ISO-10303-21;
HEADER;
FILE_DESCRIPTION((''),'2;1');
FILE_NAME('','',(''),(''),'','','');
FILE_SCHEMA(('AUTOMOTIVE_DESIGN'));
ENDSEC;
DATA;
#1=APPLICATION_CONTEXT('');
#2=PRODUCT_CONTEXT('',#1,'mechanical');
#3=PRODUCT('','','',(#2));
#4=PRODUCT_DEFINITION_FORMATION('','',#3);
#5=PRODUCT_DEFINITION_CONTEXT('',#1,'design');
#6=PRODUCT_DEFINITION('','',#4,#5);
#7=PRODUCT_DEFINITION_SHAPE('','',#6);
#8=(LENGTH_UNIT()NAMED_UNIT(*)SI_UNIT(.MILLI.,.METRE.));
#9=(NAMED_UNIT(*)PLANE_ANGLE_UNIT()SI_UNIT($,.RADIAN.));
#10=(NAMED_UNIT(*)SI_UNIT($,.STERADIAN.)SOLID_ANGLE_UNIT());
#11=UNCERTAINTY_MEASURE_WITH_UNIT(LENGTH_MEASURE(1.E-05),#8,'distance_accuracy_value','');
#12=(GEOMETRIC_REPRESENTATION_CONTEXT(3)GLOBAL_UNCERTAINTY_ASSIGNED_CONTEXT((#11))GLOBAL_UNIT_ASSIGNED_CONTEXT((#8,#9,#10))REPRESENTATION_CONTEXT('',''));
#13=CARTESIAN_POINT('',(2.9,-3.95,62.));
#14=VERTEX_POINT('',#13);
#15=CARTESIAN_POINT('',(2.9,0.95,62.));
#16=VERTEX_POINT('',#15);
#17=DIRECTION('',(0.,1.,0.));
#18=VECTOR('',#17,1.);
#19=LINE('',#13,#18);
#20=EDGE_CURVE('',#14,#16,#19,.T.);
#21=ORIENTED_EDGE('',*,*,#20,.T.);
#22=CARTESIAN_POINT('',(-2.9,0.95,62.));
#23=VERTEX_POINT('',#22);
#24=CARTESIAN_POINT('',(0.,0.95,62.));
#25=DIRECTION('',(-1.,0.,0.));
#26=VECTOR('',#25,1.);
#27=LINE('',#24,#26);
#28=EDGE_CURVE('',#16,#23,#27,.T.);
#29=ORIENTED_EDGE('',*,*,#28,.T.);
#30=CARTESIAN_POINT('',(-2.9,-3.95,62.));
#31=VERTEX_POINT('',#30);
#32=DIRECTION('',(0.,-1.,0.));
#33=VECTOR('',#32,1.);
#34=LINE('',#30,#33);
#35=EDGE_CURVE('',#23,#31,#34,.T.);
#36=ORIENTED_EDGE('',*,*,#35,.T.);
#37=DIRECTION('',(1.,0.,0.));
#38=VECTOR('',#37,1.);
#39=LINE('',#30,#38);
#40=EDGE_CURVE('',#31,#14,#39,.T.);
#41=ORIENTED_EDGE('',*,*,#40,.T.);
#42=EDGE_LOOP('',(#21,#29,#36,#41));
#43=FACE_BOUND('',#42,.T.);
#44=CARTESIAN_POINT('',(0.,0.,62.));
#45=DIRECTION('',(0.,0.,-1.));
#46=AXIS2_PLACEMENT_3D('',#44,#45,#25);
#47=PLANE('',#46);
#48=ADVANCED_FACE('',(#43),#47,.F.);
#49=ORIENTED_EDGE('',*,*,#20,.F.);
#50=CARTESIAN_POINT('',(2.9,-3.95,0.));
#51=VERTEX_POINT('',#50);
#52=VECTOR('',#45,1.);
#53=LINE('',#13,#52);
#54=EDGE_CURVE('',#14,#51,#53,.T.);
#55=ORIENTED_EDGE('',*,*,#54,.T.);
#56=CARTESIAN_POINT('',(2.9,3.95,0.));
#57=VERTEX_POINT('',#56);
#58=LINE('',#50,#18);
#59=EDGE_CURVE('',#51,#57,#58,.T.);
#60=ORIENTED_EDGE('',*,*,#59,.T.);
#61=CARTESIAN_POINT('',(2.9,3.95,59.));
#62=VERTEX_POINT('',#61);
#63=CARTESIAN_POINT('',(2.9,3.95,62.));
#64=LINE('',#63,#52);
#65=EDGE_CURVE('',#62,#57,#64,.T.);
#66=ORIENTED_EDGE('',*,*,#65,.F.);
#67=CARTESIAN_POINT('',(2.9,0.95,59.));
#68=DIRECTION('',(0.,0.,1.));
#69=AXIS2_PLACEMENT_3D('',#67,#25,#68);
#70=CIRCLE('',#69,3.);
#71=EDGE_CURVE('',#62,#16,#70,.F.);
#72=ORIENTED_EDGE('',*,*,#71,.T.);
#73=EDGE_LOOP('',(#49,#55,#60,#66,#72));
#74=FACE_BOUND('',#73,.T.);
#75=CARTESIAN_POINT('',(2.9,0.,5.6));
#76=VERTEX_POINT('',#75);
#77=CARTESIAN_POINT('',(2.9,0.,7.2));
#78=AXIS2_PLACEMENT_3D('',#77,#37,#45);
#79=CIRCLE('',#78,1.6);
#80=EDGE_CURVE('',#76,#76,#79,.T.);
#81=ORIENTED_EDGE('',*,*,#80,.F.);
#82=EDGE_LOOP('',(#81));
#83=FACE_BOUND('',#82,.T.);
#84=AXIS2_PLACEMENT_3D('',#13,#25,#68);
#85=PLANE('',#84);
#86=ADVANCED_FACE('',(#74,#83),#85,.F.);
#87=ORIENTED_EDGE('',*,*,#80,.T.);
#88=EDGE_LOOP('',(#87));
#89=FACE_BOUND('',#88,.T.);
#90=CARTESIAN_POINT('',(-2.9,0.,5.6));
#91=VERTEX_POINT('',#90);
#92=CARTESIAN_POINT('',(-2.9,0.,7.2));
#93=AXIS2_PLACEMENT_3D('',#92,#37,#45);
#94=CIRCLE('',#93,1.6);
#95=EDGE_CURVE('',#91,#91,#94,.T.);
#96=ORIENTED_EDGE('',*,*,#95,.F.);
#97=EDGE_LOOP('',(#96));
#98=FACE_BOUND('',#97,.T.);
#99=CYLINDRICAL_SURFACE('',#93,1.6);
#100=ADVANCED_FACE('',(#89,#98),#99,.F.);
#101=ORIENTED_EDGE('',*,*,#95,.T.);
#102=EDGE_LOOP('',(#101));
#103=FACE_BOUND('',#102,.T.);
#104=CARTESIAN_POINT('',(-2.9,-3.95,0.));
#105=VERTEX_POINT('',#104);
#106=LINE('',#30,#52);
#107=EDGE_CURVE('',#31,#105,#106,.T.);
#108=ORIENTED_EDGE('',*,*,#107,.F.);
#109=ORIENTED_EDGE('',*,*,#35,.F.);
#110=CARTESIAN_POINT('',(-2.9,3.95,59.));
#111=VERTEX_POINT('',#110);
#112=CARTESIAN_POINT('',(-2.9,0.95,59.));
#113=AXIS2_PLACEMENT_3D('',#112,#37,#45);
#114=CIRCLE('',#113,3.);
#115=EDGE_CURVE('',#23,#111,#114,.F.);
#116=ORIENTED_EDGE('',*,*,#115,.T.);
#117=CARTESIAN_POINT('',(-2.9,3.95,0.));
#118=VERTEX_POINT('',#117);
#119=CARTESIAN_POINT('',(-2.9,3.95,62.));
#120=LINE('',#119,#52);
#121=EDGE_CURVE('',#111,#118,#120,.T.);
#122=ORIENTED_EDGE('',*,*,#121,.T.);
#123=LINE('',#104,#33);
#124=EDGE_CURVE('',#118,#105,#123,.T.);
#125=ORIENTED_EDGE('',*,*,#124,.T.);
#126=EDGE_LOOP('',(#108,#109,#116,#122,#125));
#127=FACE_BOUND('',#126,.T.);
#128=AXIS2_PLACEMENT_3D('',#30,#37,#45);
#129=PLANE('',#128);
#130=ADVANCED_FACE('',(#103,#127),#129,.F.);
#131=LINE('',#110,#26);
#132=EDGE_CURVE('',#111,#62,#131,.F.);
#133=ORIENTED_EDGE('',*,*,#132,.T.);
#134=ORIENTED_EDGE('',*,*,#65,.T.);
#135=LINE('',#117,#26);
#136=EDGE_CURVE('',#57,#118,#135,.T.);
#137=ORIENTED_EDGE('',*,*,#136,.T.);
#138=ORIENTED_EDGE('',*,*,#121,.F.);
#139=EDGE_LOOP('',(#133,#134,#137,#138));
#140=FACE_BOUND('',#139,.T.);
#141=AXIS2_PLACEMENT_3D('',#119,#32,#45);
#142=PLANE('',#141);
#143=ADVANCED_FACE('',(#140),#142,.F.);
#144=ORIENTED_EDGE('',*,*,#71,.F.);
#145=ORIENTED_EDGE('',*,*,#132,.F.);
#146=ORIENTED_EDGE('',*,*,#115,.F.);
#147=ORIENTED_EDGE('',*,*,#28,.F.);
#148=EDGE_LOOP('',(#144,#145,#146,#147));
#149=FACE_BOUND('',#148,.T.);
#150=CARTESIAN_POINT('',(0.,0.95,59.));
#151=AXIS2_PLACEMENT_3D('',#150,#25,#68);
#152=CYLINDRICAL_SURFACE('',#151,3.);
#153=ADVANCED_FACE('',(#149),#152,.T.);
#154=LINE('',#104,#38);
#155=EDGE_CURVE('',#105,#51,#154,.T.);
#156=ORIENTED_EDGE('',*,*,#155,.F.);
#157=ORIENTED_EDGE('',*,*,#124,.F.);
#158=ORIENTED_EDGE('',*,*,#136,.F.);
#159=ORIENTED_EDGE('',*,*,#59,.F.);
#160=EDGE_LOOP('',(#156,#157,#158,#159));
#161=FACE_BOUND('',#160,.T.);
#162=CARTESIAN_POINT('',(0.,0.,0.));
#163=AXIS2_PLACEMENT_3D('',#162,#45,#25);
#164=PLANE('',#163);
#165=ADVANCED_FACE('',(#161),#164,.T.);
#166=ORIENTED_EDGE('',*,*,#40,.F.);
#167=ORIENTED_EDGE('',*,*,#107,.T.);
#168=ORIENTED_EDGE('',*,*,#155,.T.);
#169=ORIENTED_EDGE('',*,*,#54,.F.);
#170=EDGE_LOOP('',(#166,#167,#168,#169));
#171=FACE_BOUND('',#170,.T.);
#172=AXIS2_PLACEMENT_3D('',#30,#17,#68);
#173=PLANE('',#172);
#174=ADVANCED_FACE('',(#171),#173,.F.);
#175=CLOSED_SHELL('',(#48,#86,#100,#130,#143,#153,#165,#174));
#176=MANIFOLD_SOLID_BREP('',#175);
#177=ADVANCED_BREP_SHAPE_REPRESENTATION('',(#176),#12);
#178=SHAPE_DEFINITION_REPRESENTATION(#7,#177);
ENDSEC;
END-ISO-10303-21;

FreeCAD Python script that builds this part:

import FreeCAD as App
import Part
import Sketcher
Q = App.Units.Quantity


def edges_at(feature, points):
    """Names of the edges that pass closest to the given points."""
    edges = feature.Shape.Edges
    near = lambda p: min(range(len(edges)), key=lambda i: edges[i].distToShape(Part.Vertex(*p))[0])
    return sorted({f"Edge{near(p) + 1}" for p in points})


def add_polygon(sketch, points):
    """Adds a closed chain of lines whose ends are joined by coincident constraints."""
    first, n = sketch.GeometryCount, len(points)
    for a, b in zip(points, points[1:] + points[:1]):
        sketch.addGeometry(Part.LineSegment(App.Vector(*a, 0), App.Vector(*b, 0)), False)
    for i in range(n):
        sketch.addConstraint(Sketcher.Constraint("Coincident", first + i, 2, first + (i + 1) % n, 1))

doc = App.newDocument("Part")
body = doc.addObject("PartDesign::Body", "Body")

# Sketch on XY plane
sketch1 = body.newObject("Sketcher::SketchObject", "Sketch")
sketch1.AttachmentSupport = (doc.getObject("XY_Plane"), [""])
sketch1.MapMode = "FlatFace"
add_polygon(sketch1, [(-3, 4), (-3, -4), (3, -4), (3, 4)])  # lines 0-3
sketch1.addConstraint([
    Sketcher.Constraint("Vertical", 0),
    Sketcher.Constraint("Horizontal", 1),
    Sketcher.Constraint("Vertical", 2),
    Sketcher.Constraint("Horizontal", 3),
    Sketcher.Constraint("Symmetric", 0, 2, 2, 2, -1, 1),
    Sketcher.Constraint("DistanceX", 1, 1, 1, 2, Q("5.8 mm")),
    Sketcher.Constraint("DistanceY", 0, 2, 0, 1, Q("7.9 mm")),
])
pad1 = body.newObject("PartDesign::Pad", "Pad")
pad1.Profile = sketch1
pad1.Length = 62

# Sketch on YZ plane
sketch2 = body.newObject("Sketcher::SketchObject", "Sketch001")
sketch2.AttachmentSupport = (doc.getObject("YZ_Plane"), [""])
sketch2.MapMode = "FlatFace"
sketch2.AttachmentOffset = App.Placement(App.Vector(0, 0, 2.9), App.Rotation())
sketch2.addGeometry(Part.Circle(App.Vector(0, 7.2, 0), App.Vector(0, 0, 1), 1.6), False)
sketch2.addConstraint([
    Sketcher.Constraint("PointOnObject", 0, 3, -2),
    Sketcher.Constraint("Diameter", 0, Q("3.2 mm")),
    Sketcher.Constraint("DistanceY", -1, 1, 0, 3, Q("7.2 mm")),
])
pocket1 = body.newObject("PartDesign::Pocket", "Pocket")
pocket1.Profile = sketch2
pocket1.Type = "ThroughAll"
doc.recompute()

fillet = body.newObject("PartDesign::Fillet", "Fillet")
fillet.Base = (pocket1, edges_at(pocket1, [(0, 3.95, 62)]))
fillet.Radius = 3

doc.recompute()
